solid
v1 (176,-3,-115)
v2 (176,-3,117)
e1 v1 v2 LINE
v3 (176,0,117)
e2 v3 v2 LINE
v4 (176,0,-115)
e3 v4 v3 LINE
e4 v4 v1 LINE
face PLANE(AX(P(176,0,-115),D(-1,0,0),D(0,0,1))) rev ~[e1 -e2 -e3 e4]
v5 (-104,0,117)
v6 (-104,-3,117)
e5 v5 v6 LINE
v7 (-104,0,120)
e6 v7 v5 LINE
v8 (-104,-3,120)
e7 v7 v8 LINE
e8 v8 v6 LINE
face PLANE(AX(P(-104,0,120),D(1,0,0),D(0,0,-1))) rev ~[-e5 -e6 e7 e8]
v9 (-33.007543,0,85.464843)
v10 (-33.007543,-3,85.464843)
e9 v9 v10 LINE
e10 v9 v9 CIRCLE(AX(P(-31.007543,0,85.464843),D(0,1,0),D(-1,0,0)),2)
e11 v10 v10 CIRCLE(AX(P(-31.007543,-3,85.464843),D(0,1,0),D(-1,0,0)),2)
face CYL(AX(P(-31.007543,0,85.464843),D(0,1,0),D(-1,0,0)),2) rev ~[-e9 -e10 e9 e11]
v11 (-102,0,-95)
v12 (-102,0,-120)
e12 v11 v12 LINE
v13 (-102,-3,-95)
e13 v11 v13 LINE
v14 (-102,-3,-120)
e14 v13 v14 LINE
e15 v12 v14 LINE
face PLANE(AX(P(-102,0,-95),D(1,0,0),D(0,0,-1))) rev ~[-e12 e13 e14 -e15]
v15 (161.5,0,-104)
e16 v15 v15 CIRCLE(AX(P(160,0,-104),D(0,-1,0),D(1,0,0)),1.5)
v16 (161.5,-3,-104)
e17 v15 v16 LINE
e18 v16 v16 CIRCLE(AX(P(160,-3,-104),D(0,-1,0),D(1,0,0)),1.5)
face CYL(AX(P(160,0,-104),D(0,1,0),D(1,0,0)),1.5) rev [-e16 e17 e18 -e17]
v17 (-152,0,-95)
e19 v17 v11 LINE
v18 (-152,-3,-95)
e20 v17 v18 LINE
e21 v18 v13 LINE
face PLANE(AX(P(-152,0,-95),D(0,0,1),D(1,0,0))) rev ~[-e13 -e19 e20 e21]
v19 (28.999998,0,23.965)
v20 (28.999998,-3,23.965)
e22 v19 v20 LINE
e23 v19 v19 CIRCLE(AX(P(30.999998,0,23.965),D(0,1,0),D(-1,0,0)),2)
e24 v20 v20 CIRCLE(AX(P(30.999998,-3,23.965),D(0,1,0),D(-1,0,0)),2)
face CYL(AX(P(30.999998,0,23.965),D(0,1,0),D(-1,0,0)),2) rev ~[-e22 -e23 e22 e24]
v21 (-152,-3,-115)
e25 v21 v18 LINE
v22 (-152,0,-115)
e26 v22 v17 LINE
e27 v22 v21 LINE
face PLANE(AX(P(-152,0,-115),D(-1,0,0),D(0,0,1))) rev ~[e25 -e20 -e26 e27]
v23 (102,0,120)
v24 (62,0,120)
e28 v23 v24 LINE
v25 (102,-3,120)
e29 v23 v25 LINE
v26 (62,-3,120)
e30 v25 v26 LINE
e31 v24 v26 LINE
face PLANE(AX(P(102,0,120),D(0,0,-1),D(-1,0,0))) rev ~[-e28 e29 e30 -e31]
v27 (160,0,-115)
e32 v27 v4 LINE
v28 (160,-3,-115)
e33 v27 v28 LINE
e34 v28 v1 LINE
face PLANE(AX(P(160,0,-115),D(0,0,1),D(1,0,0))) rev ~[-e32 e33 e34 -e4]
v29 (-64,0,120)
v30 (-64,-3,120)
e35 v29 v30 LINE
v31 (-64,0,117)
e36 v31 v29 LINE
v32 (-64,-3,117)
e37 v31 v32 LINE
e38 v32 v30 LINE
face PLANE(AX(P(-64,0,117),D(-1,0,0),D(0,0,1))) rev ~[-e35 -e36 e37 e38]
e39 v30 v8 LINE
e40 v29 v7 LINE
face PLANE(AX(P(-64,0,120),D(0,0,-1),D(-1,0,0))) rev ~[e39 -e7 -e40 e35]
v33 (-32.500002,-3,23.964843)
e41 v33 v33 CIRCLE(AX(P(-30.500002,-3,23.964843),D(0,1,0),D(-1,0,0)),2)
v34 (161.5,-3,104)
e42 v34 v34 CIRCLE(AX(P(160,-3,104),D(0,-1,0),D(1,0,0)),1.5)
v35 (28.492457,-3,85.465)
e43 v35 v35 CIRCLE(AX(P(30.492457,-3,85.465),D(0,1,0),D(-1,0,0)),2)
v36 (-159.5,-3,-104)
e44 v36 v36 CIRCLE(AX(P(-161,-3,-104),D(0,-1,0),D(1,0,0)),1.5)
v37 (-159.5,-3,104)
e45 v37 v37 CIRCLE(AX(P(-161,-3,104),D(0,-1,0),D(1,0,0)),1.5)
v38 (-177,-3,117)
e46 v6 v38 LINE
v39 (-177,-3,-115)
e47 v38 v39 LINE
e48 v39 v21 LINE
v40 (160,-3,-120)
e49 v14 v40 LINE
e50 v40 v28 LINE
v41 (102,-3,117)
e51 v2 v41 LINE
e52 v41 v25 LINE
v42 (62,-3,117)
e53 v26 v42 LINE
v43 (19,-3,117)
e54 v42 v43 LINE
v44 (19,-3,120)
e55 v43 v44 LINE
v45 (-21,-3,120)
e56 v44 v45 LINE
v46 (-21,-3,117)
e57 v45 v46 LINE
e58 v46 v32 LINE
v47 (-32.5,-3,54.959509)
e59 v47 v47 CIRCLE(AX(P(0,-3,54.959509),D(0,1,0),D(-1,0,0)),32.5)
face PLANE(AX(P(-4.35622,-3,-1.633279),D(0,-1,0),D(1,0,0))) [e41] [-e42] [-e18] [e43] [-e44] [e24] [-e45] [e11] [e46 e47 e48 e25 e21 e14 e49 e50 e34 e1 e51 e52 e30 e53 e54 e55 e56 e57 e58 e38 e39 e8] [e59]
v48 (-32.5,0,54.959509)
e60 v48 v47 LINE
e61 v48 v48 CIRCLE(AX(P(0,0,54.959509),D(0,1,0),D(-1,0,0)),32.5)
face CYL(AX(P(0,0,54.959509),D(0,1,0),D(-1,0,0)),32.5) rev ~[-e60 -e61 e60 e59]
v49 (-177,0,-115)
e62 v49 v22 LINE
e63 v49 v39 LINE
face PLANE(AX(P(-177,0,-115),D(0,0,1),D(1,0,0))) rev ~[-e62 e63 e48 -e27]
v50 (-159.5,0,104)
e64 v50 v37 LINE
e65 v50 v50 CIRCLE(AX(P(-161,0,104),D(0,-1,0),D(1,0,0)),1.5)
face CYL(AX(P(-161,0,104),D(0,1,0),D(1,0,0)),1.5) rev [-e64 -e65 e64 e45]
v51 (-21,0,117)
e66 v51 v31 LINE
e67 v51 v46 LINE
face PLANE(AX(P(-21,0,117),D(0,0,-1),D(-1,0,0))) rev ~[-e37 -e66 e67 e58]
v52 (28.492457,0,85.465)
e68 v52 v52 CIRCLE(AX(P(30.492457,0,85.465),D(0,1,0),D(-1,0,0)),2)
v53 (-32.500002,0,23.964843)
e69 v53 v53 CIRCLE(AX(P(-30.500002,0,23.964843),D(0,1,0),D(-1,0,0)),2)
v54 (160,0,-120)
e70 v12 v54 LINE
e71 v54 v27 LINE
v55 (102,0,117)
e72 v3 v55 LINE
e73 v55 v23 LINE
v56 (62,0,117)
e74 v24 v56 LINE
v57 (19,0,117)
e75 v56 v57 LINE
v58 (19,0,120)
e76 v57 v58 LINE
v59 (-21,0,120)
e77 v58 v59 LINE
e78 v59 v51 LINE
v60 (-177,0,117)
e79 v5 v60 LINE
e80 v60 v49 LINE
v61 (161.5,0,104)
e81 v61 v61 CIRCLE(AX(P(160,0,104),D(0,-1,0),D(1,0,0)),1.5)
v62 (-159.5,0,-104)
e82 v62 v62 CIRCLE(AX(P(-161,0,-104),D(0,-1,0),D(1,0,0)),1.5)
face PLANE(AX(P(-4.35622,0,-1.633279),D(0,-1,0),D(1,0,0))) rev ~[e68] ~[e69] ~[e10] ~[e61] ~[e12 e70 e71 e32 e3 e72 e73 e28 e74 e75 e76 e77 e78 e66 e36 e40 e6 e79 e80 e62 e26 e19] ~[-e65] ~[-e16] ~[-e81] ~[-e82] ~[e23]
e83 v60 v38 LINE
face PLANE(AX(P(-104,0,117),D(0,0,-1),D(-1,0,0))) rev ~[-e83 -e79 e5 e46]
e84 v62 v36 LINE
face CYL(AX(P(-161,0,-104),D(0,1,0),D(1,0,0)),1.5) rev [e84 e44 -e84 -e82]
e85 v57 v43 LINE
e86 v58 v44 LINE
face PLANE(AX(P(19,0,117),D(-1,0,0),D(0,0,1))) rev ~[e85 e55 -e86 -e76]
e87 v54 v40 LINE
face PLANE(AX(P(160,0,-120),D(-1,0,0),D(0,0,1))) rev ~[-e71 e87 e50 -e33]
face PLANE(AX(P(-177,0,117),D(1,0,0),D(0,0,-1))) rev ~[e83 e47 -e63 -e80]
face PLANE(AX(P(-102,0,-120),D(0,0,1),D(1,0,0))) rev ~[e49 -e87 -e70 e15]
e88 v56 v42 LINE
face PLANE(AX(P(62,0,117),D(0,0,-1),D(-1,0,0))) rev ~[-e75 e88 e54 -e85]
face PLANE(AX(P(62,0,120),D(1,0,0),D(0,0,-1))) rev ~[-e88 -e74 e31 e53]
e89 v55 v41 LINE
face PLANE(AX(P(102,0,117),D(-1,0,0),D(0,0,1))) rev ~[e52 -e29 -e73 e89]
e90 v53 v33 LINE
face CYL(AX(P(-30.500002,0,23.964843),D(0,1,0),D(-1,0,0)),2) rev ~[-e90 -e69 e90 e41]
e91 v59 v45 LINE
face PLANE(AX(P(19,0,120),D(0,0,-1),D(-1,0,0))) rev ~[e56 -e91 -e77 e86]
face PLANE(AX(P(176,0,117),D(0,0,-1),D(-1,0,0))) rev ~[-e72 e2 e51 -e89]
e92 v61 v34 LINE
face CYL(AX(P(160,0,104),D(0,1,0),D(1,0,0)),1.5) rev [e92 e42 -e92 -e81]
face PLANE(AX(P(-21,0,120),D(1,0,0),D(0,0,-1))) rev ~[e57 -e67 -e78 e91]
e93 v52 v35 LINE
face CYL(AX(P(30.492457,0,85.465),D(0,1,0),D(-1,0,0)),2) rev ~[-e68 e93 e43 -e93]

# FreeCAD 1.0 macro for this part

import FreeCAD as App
import Part
import Sketcher
from FreeCAD import Vector


def add_polygon(sketch, points):
    """Adds a closed chain of lines whose ends are joined by coincident constraints."""
    first, n = sketch.GeometryCount, len(points)
    for a, b in zip(points, points[1:] + points[:1]):
        sketch.addGeometry(Part.LineSegment(App.Vector(*a, 0), App.Vector(*b, 0)), False)
    for i in range(n):
        sketch.addConstraint(Sketcher.Constraint("Coincident", first + i, 2, first + (i + 1) % n, 1))

doc = App.newDocument("Part")
body = doc.addObject("PartDesign::Body", "Body")

sketch1 = body.newObject("Sketcher::SketchObject", "Sketch")
sketch1.AttachmentSupport = (doc.getObject("XZ_Plane"), [""])
sketch1.MapMode = "FlatFace"
add_polygon(sketch1, [(102, 117), (102, 120), (62, 120), (62, 117), (19, 117), (19, 120), (-21, 120), (-21, 117), (-64, 117), (-64, 120), (-104, 120), (-104, 117), (-177, 117), (-177, -115), (-152, -115), (-152, -95), (-102, -95), (-102, -120), (160, -120), (160, -115), (176, -115), (176, 117)])
sketch1.addGeometry(Part.Circle(Vector(-161, -104, 0), Vector(0, 0, 1), 1.5), False)
sketch1.addGeometry(Part.Circle(Vector(160, -104, 0), Vector(0, 0, 1), 1.5), False)
sketch1.addGeometry(Part.Circle(Vector(-161, 104, 0), Vector(0, 0, 1), 1.5), False)
sketch1.addGeometry(Part.Circle(Vector(160, 104, 0), Vector(0, 0, 1), 1.5), False)
sketch1.addConstraint(Sketcher.Constraint("Vertical", 0))
sketch1.addConstraint(Sketcher.Constraint("Horizontal", 1))
sketch1.addConstraint(Sketcher.Constraint("Vertical", 2))
sketch1.addConstraint(Sketcher.Constraint("Horizontal", 3))
sketch1.addConstraint(Sketcher.Constraint("Vertical", 4))
sketch1.addConstraint(Sketcher.Constraint("Horizontal", 5))
sketch1.addConstraint(Sketcher.Constraint("Vertical", 6))
sketch1.addConstraint(Sketcher.Constraint("Horizontal", 7))
sketch1.addConstraint(Sketcher.Constraint("Vertical", 8))
sketch1.addConstraint(Sketcher.Constraint("Horizontal", 9))
sketch1.addConstraint(Sketcher.Constraint("Vertical", 10))
sketch1.addConstraint(Sketcher.Constraint("Horizontal", 11))
sketch1.addConstraint(Sketcher.Constraint("Vertical", 12))
sketch1.addConstraint(Sketcher.Constraint("Horizontal", 13))
sketch1.addConstraint(Sketcher.Constraint("Vertical", 14))
sketch1.addConstraint(Sketcher.Constraint("Horizontal", 15))
sketch1.addConstraint(Sketcher.Constraint("Vertical", 16))
sketch1.addConstraint(Sketcher.Constraint("Horizontal", 17))
sketch1.addConstraint(Sketcher.Constraint("Vertical", 18))
sketch1.addConstraint(Sketcher.Constraint("Horizontal", 19))
sketch1.addConstraint(Sketcher.Constraint("Vertical", 20))
sketch1.addConstraint(Sketcher.Constraint("Horizontal", 21))
sketch1.addConstraint(Sketcher.Constraint("Equal", 22, 23))
sketch1.addConstraint(Sketcher.Constraint("Equal", 23, 24))
sketch1.addConstraint(Sketcher.Constraint("Equal", 24, 25))
sketch1.addConstraint(Sketcher.Constraint("Symmetric", 0, 2, 16, 2, -1, 1))
sketch1.addConstraint(Sketcher.Constraint("Symmetric", 22, 3, 24, 3, -1))
sketch1.addConstraint(Sketcher.Constraint("Symmetric", 23, 3, 25, 3, -1))
sketch1.addConstraint(Sketcher.Constraint("Horizontal", 22, 3, 23, 3))
sketch1.addConstraint(Sketcher.Constraint("Horizontal", 1, 2, 4, 2))
sketch1.addConstraint(Sketcher.Constraint("Horizontal", 3, 2, 6, 2))
sketch1.addConstraint(Sketcher.Constraint("Horizontal", 5, 2, 8, 2))
sketch1.addConstraint(Sketcher.Constraint("Horizontal", 7, 2, 10, 2))
sketch1.addConstraint(Sketcher.Constraint("Horizontal", 13, 2, 18, 2))
sketch1.addConstraint(Sketcher.Constraint("Horizontal", 11, 2, 20, 2))
sketch1.addConstraint(Sketcher.Constraint("Vertical", 25, 3, 17, 2))
sketch1.addConstraint(Sketcher.Constraint("Equal", 1, 5))
sketch1.addConstraint(Sketcher.Constraint("Equal", 3, 7))
sketch1.addConstraint(Sketcher.Constraint("Equal", 5, 9))
sketch1.addConstraint(Sketcher.Constraint("Equal", 13, 16))
sketch1.addConstraint(Sketcher.Constraint("Diameter", 22, 3.0))
sketch1.addConstraint(Sketcher.Constraint("DistanceX", 1, 2, 1, 1, 40.0))
sketch1.addConstraint(Sketcher.Constraint("DistanceX", 3, 2, 3, 1, 43.0))
sketch1.addConstraint(Sketcher.Constraint("DistanceX", 11, 2, 11, 1, 73.0))
sketch1.addConstraint(Sketcher.Constraint("DistanceX", 13, 1, 13, 2, 25.0))
sketch1.addConstraint(Sketcher.Constraint("DistanceX", 15, 1, 15, 2, 50.0))
sketch1.addConstraint(Sketcher.Constraint("DistanceX", 17, 1, 17, 2, 262.0))
sketch1.addConstraint(Sketcher.Constraint("DistanceX", 19, 1, 19, 2, 16.0))
sketch1.addConstraint(Sketcher.Constraint("DistanceY", 0, 1, 0, 2, 3.0))
sketch1.addConstraint(Sketcher.Constraint("DistanceY", 12, 2, 12, 1, 232.0))
sketch1.addConstraint(Sketcher.Constraint("DistanceY", 14, 1, 14, 2, 20.0))
sketch1.addConstraint(Sketcher.Constraint("DistanceX", 22, 3, -1, 1, 161.0))
sketch1.addConstraint(Sketcher.Constraint("DistanceY", 22, 3, -1, 1, 104.0))
pad1 = body.newObject("PartDesign::Pad", "Pad")
pad1.Profile = sketch1
pad1.Length = 3

sketch2 = body.newObject("Sketcher::SketchObject", "Sketch001")
sketch2.AttachmentSupport = (doc.getObject("XZ_Plane"), [""])
sketch2.MapMode = "FlatFace"
sketch2.addGeometry(Part.Circle(Vector(0, 54.959509, 0), Vector(0, 0, 1), 32.5), False)
sketch2.addConstraint(Sketcher.Constraint("PointOnObject", 0, 3, -2))
sketch2.addConstraint(Sketcher.Constraint("Diameter", 0, 65.0))
sketch2.addConstraint(Sketcher.Constraint("DistanceY", -1, 1, 0, 3, 54.959509))
pocket1 = body.newObject("PartDesign::Pocket", "Pocket")
pocket1.Profile = sketch2
pocket1.Length = 3
pocket1.Reversed = True

sketch3 = body.newObject("Sketcher::SketchObject", "Sketch002")
sketch3.AttachmentSupport = (doc.getObject("XZ_Plane"), [""])
sketch3.MapMode = "FlatFace"
sketch3.addGeometry(Part.Circle(Vector(30.492457, 85.465, 0), Vector(0, 0, 1), 2), False)
sketch3.addGeometry(Part.Circle(Vector(-31.007543, 85.464843, 0), Vector(0, 0, 1), 2), False)
sketch3.addGeometry(Part.Circle(Vector(-30.500002, 23.964843, 0), Vector(0, 0, 1), 2), False)
sketch3.addGeometry(Part.Circle(Vector(30.999998, 23.965, 0), Vector(0, 0, 1), 2), False)
sketch3.addConstraint(Sketcher.Constraint("Equal", 0, 1))
sketch3.addConstraint(Sketcher.Constraint("Equal", 1, 2))
sketch3.addConstraint(Sketcher.Constraint("Equal", 2, 3))
sketch3.addConstraint(Sketcher.Constraint("Diameter", 0, 4.0))
sketch3.addConstraint(Sketcher.Constraint("DistanceX", -1, 1, 3, 3, 30.999998))
sketch3.addConstraint(Sketcher.Constraint("DistanceX", 2, 3, -1, 1, 30.500002))
sketch3.addConstraint(Sketcher.Constraint("DistanceX", 1, 3, 0, 3, 61.5))
sketch3.addConstraint(Sketcher.Constraint("DistanceY", 2, 3, 1, 3, 61.5))
sketch3.addConstraint(Sketcher.Constraint("DistanceY", 3, 3, 0, 3, 61.5))
sketch3.addConstraint(Sketcher.Constraint("DistanceY", -1, 1, 0, 3, 85.465))
sketch3.addConstraint(Sketcher.Constraint("DistanceX", 1, 3, 2, 3, 0.507541))
sketch3.addConstraint(Sketcher.Constraint("DistanceY", -1, 1, 1, 3, 85.464843))
pocket2 = body.newObject("PartDesign::Pocket", "Pocket001")
pocket2.Profile = sketch3
pocket2.Length = 3
pocket2.Reversed = True

doc.recompute()
